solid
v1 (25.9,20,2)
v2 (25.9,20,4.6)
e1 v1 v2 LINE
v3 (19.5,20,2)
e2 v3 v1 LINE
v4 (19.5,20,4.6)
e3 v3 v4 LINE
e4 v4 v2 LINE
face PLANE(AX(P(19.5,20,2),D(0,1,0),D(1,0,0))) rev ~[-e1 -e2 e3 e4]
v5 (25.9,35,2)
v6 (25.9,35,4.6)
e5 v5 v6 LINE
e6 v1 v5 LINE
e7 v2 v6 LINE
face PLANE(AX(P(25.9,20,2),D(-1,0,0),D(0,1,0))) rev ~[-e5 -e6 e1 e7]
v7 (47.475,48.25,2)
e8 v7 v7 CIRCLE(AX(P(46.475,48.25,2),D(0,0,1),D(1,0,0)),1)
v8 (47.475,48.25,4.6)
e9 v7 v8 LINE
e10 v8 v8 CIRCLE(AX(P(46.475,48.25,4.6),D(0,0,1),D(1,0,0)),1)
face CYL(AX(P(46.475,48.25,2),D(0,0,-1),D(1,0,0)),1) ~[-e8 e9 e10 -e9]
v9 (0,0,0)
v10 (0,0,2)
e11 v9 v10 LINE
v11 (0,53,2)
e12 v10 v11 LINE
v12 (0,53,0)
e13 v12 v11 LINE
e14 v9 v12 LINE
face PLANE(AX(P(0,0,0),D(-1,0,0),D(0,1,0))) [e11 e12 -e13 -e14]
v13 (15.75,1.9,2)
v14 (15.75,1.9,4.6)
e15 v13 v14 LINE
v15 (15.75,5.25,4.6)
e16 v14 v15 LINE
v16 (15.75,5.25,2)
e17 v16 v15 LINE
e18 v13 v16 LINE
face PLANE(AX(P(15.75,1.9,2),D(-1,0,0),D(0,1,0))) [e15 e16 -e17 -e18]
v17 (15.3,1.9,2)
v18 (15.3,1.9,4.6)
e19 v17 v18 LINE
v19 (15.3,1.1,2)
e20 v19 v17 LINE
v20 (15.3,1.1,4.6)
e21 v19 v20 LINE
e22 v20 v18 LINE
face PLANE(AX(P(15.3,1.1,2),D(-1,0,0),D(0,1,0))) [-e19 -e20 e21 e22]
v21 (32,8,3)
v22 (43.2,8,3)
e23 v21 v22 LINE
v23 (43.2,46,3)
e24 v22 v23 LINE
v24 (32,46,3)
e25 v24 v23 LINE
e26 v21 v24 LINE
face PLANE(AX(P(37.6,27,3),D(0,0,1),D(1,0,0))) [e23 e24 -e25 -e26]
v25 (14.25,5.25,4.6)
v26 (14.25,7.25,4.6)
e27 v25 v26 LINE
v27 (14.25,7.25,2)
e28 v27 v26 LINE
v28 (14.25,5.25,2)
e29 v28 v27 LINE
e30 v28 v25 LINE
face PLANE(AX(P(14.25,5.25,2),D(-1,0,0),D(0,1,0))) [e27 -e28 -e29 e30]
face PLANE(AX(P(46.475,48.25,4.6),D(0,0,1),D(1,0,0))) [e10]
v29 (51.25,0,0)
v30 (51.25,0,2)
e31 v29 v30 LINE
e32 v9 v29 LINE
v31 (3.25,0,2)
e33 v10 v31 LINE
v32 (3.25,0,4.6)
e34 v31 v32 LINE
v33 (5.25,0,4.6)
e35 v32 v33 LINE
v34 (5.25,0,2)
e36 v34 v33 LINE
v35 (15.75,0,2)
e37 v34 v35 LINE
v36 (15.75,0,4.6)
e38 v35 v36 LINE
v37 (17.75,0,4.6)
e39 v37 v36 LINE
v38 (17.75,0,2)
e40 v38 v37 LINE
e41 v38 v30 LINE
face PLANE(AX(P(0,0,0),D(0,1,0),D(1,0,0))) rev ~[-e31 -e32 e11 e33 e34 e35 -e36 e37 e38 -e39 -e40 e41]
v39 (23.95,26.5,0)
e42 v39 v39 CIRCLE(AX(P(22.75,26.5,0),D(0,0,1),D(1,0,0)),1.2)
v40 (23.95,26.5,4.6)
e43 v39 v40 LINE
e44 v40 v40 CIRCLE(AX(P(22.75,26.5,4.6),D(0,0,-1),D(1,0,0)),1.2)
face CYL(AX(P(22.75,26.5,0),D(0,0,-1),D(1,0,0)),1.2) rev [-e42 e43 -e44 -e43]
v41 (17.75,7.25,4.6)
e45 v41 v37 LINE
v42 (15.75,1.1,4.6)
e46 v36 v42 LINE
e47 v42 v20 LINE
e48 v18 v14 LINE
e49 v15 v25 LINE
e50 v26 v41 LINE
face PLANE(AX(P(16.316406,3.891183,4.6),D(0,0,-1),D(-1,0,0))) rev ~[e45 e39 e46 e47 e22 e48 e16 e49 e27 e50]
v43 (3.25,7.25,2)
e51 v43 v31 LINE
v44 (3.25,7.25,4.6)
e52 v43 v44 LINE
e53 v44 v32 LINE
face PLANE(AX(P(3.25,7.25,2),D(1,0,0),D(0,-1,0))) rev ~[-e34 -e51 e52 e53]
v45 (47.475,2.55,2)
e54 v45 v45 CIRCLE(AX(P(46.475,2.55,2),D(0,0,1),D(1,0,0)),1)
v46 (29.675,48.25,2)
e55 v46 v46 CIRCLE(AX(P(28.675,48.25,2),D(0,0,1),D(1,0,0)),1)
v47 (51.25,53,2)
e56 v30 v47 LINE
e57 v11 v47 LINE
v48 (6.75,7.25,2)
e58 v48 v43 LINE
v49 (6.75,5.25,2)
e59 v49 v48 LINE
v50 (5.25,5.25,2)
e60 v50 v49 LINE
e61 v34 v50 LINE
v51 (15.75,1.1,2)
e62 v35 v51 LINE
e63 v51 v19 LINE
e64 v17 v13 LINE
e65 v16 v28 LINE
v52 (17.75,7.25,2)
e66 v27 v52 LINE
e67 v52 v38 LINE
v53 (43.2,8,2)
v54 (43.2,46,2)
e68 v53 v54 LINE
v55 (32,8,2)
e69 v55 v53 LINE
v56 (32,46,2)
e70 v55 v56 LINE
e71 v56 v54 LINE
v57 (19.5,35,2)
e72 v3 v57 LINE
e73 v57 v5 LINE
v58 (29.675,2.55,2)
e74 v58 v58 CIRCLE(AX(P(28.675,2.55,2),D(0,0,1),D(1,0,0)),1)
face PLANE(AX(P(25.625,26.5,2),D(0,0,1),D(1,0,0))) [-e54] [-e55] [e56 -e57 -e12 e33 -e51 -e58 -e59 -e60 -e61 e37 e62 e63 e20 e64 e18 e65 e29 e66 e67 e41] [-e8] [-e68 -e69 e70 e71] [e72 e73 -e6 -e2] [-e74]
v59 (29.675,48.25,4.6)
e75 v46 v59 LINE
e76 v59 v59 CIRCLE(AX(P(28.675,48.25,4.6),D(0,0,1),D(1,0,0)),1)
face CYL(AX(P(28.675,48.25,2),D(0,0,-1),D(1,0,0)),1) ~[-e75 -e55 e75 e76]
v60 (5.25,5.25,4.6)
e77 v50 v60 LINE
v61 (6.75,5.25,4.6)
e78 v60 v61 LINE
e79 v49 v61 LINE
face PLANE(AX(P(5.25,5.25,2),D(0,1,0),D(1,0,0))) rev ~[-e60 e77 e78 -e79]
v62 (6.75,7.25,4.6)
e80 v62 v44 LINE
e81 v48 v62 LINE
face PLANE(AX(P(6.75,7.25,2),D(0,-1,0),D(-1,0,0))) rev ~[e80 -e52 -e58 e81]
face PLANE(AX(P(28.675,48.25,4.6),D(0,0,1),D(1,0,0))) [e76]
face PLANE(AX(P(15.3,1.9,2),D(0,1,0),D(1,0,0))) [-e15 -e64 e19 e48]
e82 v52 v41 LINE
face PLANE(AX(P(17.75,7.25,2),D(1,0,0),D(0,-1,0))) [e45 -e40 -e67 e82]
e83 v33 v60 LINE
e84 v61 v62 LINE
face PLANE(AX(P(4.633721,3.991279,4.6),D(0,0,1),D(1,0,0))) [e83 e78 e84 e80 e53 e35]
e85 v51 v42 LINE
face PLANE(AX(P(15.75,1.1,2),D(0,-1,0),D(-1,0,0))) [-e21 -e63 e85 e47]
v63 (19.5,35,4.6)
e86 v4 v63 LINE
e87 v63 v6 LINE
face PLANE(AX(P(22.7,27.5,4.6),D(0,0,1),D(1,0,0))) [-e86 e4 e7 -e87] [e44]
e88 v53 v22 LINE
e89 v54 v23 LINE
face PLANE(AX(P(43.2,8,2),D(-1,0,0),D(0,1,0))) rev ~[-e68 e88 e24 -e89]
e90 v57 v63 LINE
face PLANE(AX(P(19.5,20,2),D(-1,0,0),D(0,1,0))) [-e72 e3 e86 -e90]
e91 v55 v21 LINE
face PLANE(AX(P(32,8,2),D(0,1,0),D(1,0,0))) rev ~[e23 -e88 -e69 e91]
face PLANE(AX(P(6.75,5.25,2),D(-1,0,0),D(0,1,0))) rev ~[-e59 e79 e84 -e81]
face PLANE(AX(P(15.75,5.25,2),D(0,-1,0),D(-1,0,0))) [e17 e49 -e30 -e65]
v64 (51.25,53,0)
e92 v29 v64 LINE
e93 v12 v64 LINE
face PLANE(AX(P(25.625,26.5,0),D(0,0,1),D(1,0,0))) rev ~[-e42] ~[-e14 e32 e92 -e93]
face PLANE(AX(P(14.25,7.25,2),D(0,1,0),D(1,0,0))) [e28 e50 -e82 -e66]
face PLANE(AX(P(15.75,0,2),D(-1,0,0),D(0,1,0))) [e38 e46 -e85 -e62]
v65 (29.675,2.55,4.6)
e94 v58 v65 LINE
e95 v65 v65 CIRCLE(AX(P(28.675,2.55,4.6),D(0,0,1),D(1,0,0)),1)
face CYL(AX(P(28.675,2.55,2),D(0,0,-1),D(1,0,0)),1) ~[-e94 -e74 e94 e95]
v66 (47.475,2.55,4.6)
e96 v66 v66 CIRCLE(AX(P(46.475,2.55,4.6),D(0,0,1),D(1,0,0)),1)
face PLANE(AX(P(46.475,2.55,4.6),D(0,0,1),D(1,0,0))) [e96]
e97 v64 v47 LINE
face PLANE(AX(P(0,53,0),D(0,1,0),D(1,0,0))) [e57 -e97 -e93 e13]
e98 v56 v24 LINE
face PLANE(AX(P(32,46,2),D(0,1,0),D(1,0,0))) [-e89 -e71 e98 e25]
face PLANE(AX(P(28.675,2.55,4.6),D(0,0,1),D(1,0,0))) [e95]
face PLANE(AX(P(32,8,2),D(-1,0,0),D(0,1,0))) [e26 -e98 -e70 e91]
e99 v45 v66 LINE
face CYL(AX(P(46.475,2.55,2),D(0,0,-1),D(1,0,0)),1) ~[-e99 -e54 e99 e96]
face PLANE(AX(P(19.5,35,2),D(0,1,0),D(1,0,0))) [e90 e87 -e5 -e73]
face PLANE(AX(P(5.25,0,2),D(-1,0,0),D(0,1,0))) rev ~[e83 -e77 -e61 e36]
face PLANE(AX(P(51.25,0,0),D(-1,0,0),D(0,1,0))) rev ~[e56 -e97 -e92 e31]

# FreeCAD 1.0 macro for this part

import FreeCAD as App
import Part
import Sketcher

V = App.Vector

doc = App.newDocument("Part")
body = doc.addObject("PartDesign::Body", "Body")

# Sketch on XY plane
sketch1 = body.newObject("Sketcher::SketchObject", "Sketch")
sketch1.AttachmentSupport = (doc.getObject("XY_Plane"), [""])
sketch1.MapMode = "FlatFace"
sketch1.AttachmentOffset = App.Placement(V(0, 0, 10.25), App.Rotation())
sketch1.addGeometry(Part.Circle(V(22.8, 26.5, 0), V(0, 0, 1), 1.6), False)
sketch1.addConstraint([
    Sketcher.Constraint("Diameter", 0, 3.3),
    Sketcher.Constraint("DistanceY", -1, 1, 0, 3, 26.5),
    Sketcher.Constraint("DistanceX", -1, 1, 0, 3, 22.75),
])
pad1 = body.newObject("PartDesign::Pad", "Pad")
pad1.Profile = sketch1
pad1.Length = 5
pad1.Reversed = True
body2 = doc.addObject("PartDesign::Body", "Body001")

# Sketch on XY plane
sketch2 = body2.newObject("Sketcher::SketchObject", "Sketch001")
sketch2.AttachmentSupport = (doc.getObject("XY_Plane001"), [""])
sketch2.MapMode = "FlatFace"
sketch2.addGeometry(Part.Circle(V(22.8, 26.5, 0), V(0, 0, 1), 1.2), False)
sketch2.addConstraint([
    Sketcher.Constraint("Diameter", 0, 2.4),
    Sketcher.Constraint("DistanceY", -1, 1, 0, 3, 26.5),
    Sketcher.Constraint("DistanceX", -1, 1, 0, 3, 22.75),
])
pad2 = body2.newObject("PartDesign::Pad", "Pad001")
pad2.Profile = sketch2
pad2.Length = 10
doc.recompute()

boolean = body2.newObject("PartDesign::Boolean", "Boolean")
boolean.Type = "Fuse"
boolean.addObjects([body])
body3 = doc.addObject("PartDesign::Body", "Body002")

# Sketch on XY plane
sketch3 = body3.newObject("Sketcher::SketchObject", "Sketch002")
sketch3.AttachmentSupport = (doc.getObject("XY_Plane002"), [""])
sketch3.MapMode = "FlatFace"
sketch3.AttachmentOffset = App.Placement(V(0, 0, 2), App.Rotation())
sketch3.addGeometry([
    Part.LineSegment(V(32, 46, 0), V(32, 8, 0)),
    Part.LineSegment(V(32, 8, 0), V(43, 8, 0)),
    Part.LineSegment(V(43, 8, 0), V(43, 46, 0)),
    Part.LineSegment(V(43, 46, 0), V(32, 46, 0)),
], False)
sketch3.addConstraint([
    Sketcher.Constraint("Coincident", 0, 2, 1, 1),
    Sketcher.Constraint("Coincident", 1, 2, 2, 1),
    Sketcher.Constraint("Coincident", 2, 2, 3, 1),
    Sketcher.Constraint("Coincident", 3, 2, 0, 1),
    Sketcher.Constraint("Vertical", 0),
    Sketcher.Constraint("Horizontal", 1),
    Sketcher.Constraint("Vertical", 2),
    Sketcher.Constraint("Horizontal", 3),
    Sketcher.Constraint("DistanceY", 0, 2, 0, 1, 38.0),
    Sketcher.Constraint("DistanceX", 1, 1, 1, 2, 11.2),
    Sketcher.Constraint("DistanceX", -1, 1, 0, 2, 32.0),
    Sketcher.Constraint("DistanceY", -1, 1, 0, 2, 8.0),
])
pad3 = body3.newObject("PartDesign::Pad", "Pad002")
pad3.Profile = sketch3
pad3.Length = 1
body4 = doc.addObject("PartDesign::Body", "Body003")
body4.AllowCompound = True

# Sketch on XY plane
sketch4 = body4.newObject("Sketcher::SketchObject", "Sketch003")
sketch4.AttachmentSupport = (doc.getObject("XY_Plane003"), [""])
sketch4.MapMode = "FlatFace"
sketch4.AttachmentOffset = App.Placement(V(0, 0, 2), App.Rotation())
sketch4.addGeometry([
    Part.Circle(V(28.68, 48.25, 0), V(0, 0, 1), 1),  # 0
    Part.Circle(V(46.48, 48.25, 0), V(0, 0, 1), 1),  # 1
    Part.Circle(V(28.68, 2.55, 0), V(0, 0, 1), 1),  # 2
    Part.Circle(V(46.48, 2.55, 0), V(0, 0, 1), 1),  # 3
    Part.LineSegment(V(3.25, 0, 0), V(5.25, 0, 0)),  # 4
    Part.LineSegment(V(5.25, 0, 0), V(5.25, 5.25, 0)),  # 5
    Part.LineSegment(V(5.25, 5.25, 0), V(6.75, 5.25, 0)),  # 6
    Part.LineSegment(V(6.75, 5.25, 0), V(6.75, 7.25, 0)),  # 7
    Part.LineSegment(V(6.75, 7.25, 0), V(3.25, 7.25, 0)),  # 8
    Part.LineSegment(V(3.25, 7.25, 0), V(3.25, 0, 0)),  # 9
    Part.LineSegment(V(15.75, 0, 0), V(17.75, 0, 0)),  # 10
    Part.LineSegment(V(17.75, 0, 0), V(17.75, 7.25, 0)),  # 11
    Part.LineSegment(V(17.75, 7.25, 0), V(14.25, 7.25, 0)),  # 12
    Part.LineSegment(V(14.25, 7.25, 0), V(14.25, 5.25, 0)),  # 13
    Part.LineSegment(V(14.25, 5.25, 0), V(15.75, 5.25, 0)),  # 14
    Part.LineSegment(V(15.75, 5.25, 0), V(15.75, 1.9, 0)),  # 15
    Part.LineSegment(V(15.75, 1.9, 0), V(15.3, 1.9, 0)),  # 16
    Part.LineSegment(V(15.3, 1.9, 0), V(15.3, 1.1, 0)),  # 17
    Part.LineSegment(V(15.3, 1.1, 0), V(15.75, 1.1, 0)),  # 18
    Part.LineSegment(V(15.75, 1.1, 0), V(15.75, 0, 0)),  # 19
    Part.LineSegment(V(19.5, 35, 0), V(19.5, 20, 0)),  # 20
    Part.LineSegment(V(19.5, 20, 0), V(25.9, 20, 0)),  # 21
    Part.LineSegment(V(25.9, 20, 0), V(25.9, 35, 0)),  # 22
    Part.LineSegment(V(25.9, 35, 0), V(19.5, 35, 0)),  # 23
], False)
sketch4.addConstraint([
    Sketcher.Constraint("Coincident", 4, 2, 5, 1),
    Sketcher.Constraint("Coincident", 5, 2, 6, 1),
    Sketcher.Constraint("Coincident", 6, 2, 7, 1),
    Sketcher.Constraint("Coincident", 7, 2, 8, 1),
    Sketcher.Constraint("Coincident", 8, 2, 9, 1),
    Sketcher.Constraint("Coincident", 9, 2, 4, 1),
    Sketcher.Constraint("Coincident", 10, 2, 11, 1),
    Sketcher.Constraint("Coincident", 11, 2, 12, 1),
    Sketcher.Constraint("Coincident", 12, 2, 13, 1),
    Sketcher.Constraint("Coincident", 13, 2, 14, 1),
    Sketcher.Constraint("Coincident", 14, 2, 15, 1),
    Sketcher.Constraint("Coincident", 15, 2, 16, 1),
    Sketcher.Constraint("Coincident", 16, 2, 17, 1),
    Sketcher.Constraint("Coincident", 17, 2, 18, 1),
    Sketcher.Constraint("Coincident", 18, 2, 19, 1),
    Sketcher.Constraint("Coincident", 19, 2, 10, 1),
    Sketcher.Constraint("Coincident", 20, 2, 21, 1),
    Sketcher.Constraint("Coincident", 21, 2, 22, 1),
    Sketcher.Constraint("Coincident", 22, 2, 23, 1),
    Sketcher.Constraint("Coincident", 23, 2, 20, 1),
    Sketcher.Constraint("Horizontal", 4),
    Sketcher.Constraint("Vertical", 5),
    Sketcher.Constraint("Horizontal", 6),
    Sketcher.Constraint("Vertical", 7),
    Sketcher.Constraint("Horizontal", 8),
    Sketcher.Constraint("Vertical", 9),
    Sketcher.Constraint("Horizontal", 10),
    Sketcher.Constraint("Vertical", 11),
    Sketcher.Constraint("Horizontal", 12),
    Sketcher.Constraint("Vertical", 13),
    Sketcher.Constraint("Horizontal", 14),
    Sketcher.Constraint("Vertical", 15),
    Sketcher.Constraint("Horizontal", 16),
    Sketcher.Constraint("Vertical", 17),
    Sketcher.Constraint("Horizontal", 18),
    Sketcher.Constraint("Vertical", 19),
    Sketcher.Constraint("Vertical", 20),
    Sketcher.Constraint("Horizontal", 21),
    Sketcher.Constraint("Vertical", 22),
    Sketcher.Constraint("Horizontal", 23),
    Sketcher.Constraint("Equal", 0, 1),
    Sketcher.Constraint("Equal", 1, 2),
    Sketcher.Constraint("Equal", 2, 3),
    Sketcher.Constraint("PointOnObject", 4, 2, -1),
    Sketcher.Constraint("PointOnObject", 10, 2, -1),
    Sketcher.Constraint("Horizontal", 0, 3, 1, 3),
    Sketcher.Constraint("Horizontal", 2, 3, 3, 3),
    Sketcher.Constraint("Horizontal", 8, 2, 11, 2),
    Sketcher.Constraint("Horizontal", 6, 2, 13, 2),
    Sketcher.Constraint("Vertical", 0, 3, 2, 3),
    Sketcher.Constraint("Vertical", 1, 3, 3, 3),
    Sketcher.Constraint("Vertical", 15, 2, 18, 2),
    Sketcher.Constraint("Equal", 4, 10),
    Sketcher.Constraint("Equal", 8, 12),
    Sketcher.Constraint("Equal", 10, 7),
    Sketcher.Constraint("Diameter", 0, 2.0),
    Sketcher.Constraint("DistanceX", 4, 1, 4, 2, 2.0),
    Sketcher.Constraint("DistanceY", 20, 2, 20, 1, 15.0),
    Sketcher.Constraint("DistanceX", 6, 1, 6, 2, 1.5),
    Sketcher.Constraint("DistanceX", 21, 1, 21, 2, 6.4),
    Sketcher.Constraint("DistanceY", 17, 2, 17, 1, 0.8),
    Sketcher.Constraint("DistanceY", 19, 2, 19, 1, 1.1),
    Sketcher.Constraint("DistanceY", -1, 1, 20, 2, 20.0),
    Sketcher.Constraint("DistanceY", 5, 2, 0, 3, 43.0),
    Sketcher.Constraint("DistanceX", 6, 2, 10, 2, 11.0),
    Sketcher.Constraint("DistanceX", 16, 2, 16, 1, 0.45),
    Sketcher.Constraint("DistanceY", 5, 1, 5, 2, 5.25),
    Sketcher.Constraint("DistanceX", -1, 1, 16, 2, 15.3),
    Sketcher.Constraint("DistanceX", -1, 1, 20, 2, 19.5),
    Sketcher.Constraint("DistanceX", 0, 3, 1, 3, 17.8),
    Sketcher.Constraint("DistanceY", 2, 3, 0, 3, 45.7),
    Sketcher.Constraint("DistanceX", -1, 1, 0, 3, 28.675),
])
pad4 = body4.newObject("PartDesign::Pad", "Pad003")
pad4.Profile = sketch4
pad4.Length = 2.6
body5 = doc.addObject("PartDesign::Body", "Body004")

# Sketch on XY plane
sketch5 = body5.newObject("Sketcher::SketchObject", "Sketch004")
sketch5.AttachmentSupport = (doc.getObject("XY_Plane004"), [""])
sketch5.MapMode = "FlatFace"
sketch5.addGeometry([
    Part.LineSegment(V(0, 53, 0), V(0, 0, 0)),
    Part.LineSegment(V(0, 0, 0), V(51, 0, 0)),
    Part.LineSegment(V(51, 0, 0), V(51, 53, 0)),
    Part.LineSegment(V(51, 53, 0), V(0, 53, 0)),
], False)
sketch5.addConstraint([
    Sketcher.Constraint("Coincident", 0, 2, 1, 1),
    Sketcher.Constraint("Coincident", 1, 2, 2, 1),
    Sketcher.Constraint("Coincident", 2, 2, 3, 1),
    Sketcher.Constraint("Coincident", 3, 2, 0, 1),
    Sketcher.Constraint("Vertical", 0),
    Sketcher.Constraint("Horizontal", 1),
    Sketcher.Constraint("Vertical", 2),
    Sketcher.Constraint("Horizontal", 3),
    Sketcher.Constraint("Coincident", 0, 2, -1, 1),
    Sketcher.Constraint("DistanceY", 0, 2, 0, 1, 53.0),
    Sketcher.Constraint("DistanceX", 1, 1, 1, 2, 51.25),
])
pad5 = body5.newObject("PartDesign::Pad", "Pad004")
pad5.Profile = sketch5
pad5.Length = 2
doc.recompute()

boolean2 = body5.newObject("PartDesign::Boolean", "Boolean001")
boolean2.Type = "Fuse"
boolean2.addObjects([body3])
doc.recompute()

boolean3 = body5.newObject("PartDesign::Boolean", "Boolean002")
boolean3.Type = "Fuse"
boolean3.addObjects([body4])
doc.recompute()

boolean4 = body5.newObject("PartDesign::Boolean", "Boolean003")
boolean4.Type = "Cut"
boolean4.addObjects([body2])

doc.recompute()
